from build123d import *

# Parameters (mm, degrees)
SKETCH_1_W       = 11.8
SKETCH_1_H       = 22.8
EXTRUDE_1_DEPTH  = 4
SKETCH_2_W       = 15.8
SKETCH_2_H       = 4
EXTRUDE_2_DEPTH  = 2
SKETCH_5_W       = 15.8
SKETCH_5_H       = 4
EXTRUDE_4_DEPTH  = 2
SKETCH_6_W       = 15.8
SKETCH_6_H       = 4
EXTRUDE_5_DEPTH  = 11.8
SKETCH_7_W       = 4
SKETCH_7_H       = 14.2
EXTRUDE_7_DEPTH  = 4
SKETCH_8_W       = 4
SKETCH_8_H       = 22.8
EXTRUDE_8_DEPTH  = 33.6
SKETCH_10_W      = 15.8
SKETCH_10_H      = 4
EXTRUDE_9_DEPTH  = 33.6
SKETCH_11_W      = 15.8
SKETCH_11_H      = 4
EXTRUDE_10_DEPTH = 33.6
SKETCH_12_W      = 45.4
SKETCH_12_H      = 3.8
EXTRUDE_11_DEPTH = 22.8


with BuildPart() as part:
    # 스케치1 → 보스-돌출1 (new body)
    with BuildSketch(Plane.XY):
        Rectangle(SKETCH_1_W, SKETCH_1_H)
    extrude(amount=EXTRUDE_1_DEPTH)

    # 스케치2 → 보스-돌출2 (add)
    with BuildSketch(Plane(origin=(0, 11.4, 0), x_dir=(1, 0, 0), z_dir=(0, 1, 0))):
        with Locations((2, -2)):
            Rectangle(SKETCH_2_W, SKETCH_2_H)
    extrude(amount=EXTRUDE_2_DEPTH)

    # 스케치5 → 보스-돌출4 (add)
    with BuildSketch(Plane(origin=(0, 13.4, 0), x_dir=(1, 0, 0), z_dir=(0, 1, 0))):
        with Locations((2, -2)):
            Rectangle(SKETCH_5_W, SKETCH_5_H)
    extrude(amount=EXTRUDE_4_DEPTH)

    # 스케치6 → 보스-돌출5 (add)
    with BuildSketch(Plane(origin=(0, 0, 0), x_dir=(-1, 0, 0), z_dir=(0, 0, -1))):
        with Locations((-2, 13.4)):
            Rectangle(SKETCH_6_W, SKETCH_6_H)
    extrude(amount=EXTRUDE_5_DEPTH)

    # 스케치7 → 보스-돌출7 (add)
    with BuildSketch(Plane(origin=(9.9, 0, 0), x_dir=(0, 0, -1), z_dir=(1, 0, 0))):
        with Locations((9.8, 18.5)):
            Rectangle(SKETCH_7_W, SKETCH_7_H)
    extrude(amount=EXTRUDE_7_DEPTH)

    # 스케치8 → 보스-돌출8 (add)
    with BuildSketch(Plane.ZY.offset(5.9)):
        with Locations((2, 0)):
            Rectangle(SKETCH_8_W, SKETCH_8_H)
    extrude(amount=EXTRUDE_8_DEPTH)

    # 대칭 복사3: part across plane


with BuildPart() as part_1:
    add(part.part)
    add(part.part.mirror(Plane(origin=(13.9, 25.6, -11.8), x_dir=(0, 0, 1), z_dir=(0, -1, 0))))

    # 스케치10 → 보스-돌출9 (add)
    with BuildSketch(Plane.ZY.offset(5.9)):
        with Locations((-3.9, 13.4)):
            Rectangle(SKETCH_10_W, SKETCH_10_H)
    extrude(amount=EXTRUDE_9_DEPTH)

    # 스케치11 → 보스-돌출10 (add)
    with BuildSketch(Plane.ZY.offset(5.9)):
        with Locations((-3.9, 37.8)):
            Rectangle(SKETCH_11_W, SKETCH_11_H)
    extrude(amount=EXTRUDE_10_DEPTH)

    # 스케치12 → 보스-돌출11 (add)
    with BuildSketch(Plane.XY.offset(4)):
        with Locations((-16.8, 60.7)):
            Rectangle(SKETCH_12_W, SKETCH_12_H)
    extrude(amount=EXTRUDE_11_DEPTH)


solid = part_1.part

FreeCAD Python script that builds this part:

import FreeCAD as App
import Part
import Sketcher
from FreeCAD import Vector


def add_polygon(sketch, points):
    """Adds a closed chain of lines whose ends are joined by coincident constraints."""
    first, n = sketch.GeometryCount, len(points)
    for a, b in zip(points, points[1:] + points[:1]):
        sketch.addGeometry(Part.LineSegment(App.Vector(*a, 0), App.Vector(*b, 0)), False)
    for i in range(n):
        sketch.addConstraint(Sketcher.Constraint("Coincident", first + i, 2, first + (i + 1) % n, 1))

doc = App.newDocument("Part")
body = doc.addObject("PartDesign::Body", "Body")

# Sketch on XY plane
sketch1 = body.newObject("Sketcher::SketchObject", "Sketch")
sketch1.AttachmentSupport = (doc.getObject("XY_Plane"), [""])
sketch1.MapMode = "FlatFace"
add_polygon(sketch1, [(-5.9, 11.4), (-5.9, -11.4), (5.9, -11.4), (5.9, 11.4)])  # lines 0-3
sketch1.addConstraint(Sketcher.Constraint("Vertical", 0))
sketch1.addConstraint(Sketcher.Constraint("Horizontal", 1))
sketch1.addConstraint(Sketcher.Constraint("Vertical", 2))
sketch1.addConstraint(Sketcher.Constraint("Horizontal", 3))
sketch1.addConstraint(Sketcher.Constraint("Symmetric", 0, 2, 2, 2, -1, 1))
sketch1.addConstraint(Sketcher.Constraint("DistanceX", 1, 1, 1, 2, 11.8))
sketch1.addConstraint(Sketcher.Constraint("DistanceY", 0, 2, 0, 1, 22.8))
pad1 = body.newObject("PartDesign::Pad", "Pad")
pad1.Profile = sketch1
pad1.Length = 4

# Sketch on XZ plane
sketch2 = body.newObject("Sketcher::SketchObject", "Sketch001")
sketch2.AttachmentSupport = (doc.getObject("XZ_Plane"), [""])
sketch2.MapMode = "FlatFace"
sketch2.AttachmentOffset = App.Placement(Vector(0, 0, -11.4), App.Rotation())
add_polygon(sketch2, [(-5.9, 0), (-5.9, 4), (9.9, 4), (9.9, 0)])  # lines 0-3
sketch2.addConstraint(Sketcher.Constraint("Vertical", 0))
sketch2.addConstraint(Sketcher.Constraint("Horizontal", 1))
sketch2.addConstraint(Sketcher.Constraint("Vertical", 2))
sketch2.addConstraint(Sketcher.Constraint("Horizontal", 3))
sketch2.addConstraint(Sketcher.Constraint("PointOnObject", 2, 2, -1))
sketch2.addConstraint(Sketcher.Constraint("DistanceY", 0, 1, 0, 2, 4.0))
sketch2.addConstraint(Sketcher.Constraint("DistanceX", 1, 1, 1, 2, 15.8))
sketch2.addConstraint(Sketcher.Constraint("DistanceX", 0, 2, -1, 1, 5.9))
pad2 = body.newObject("PartDesign::Pad", "Pad001")
pad2.Profile = sketch2
pad2.Length = 2
pad2.Reversed = True

# Sketch on XZ plane
sketch3 = body.newObject("Sketcher::SketchObject", "Sketch002")
sketch3.AttachmentSupport = (doc.getObject("XZ_Plane"), [""])
sketch3.MapMode = "FlatFace"
sketch3.AttachmentOffset = App.Placement(Vector(0, 0, -13.4), App.Rotation())
add_polygon(sketch3, [(-5.9, 0), (-5.9, 4), (9.9, 4), (9.9, 0)])  # lines 0-3
sketch3.addConstraint(Sketcher.Constraint("Vertical", 0))
sketch3.addConstraint(Sketcher.Constraint("Horizontal", 1))
sketch3.addConstraint(Sketcher.Constraint("Vertical", 2))
sketch3.addConstraint(Sketcher.Constraint("Horizontal", 3))
sketch3.addConstraint(Sketcher.Constraint("PointOnObject", 2, 2, -1))
sketch3.addConstraint(Sketcher.Constraint("DistanceY", 0, 1, 0, 2, 4.0))
sketch3.addConstraint(Sketcher.Constraint("DistanceX", 1, 1, 1, 2, 15.8))
sketch3.addConstraint(Sketcher.Constraint("DistanceX", 0, 2, -1, 1, 5.9))
pad3 = body.newObject("PartDesign::Pad", "Pad002")
pad3.Profile = sketch3
pad3.Length = 2
pad3.Reversed = True

# Sketch on XY plane
sketch4 = body.newObject("Sketcher::SketchObject", "Sketch003")
sketch4.AttachmentSupport = (doc.getObject("XY_Plane"), [""])
sketch4.MapMode = "FlatFace"
add_polygon(sketch4, [(9.9, 15.4), (9.9, 11.4), (-5.9, 11.4), (-5.9, 15.4)])  # lines 0-3
sketch4.addConstraint(Sketcher.Constraint("Vertical", 0))
sketch4.addConstraint(Sketcher.Constraint("Horizontal", 1))
sketch4.addConstraint(Sketcher.Constraint("Vertical", 2))
sketch4.addConstraint(Sketcher.Constraint("Horizontal", 3))
sketch4.addConstraint(Sketcher.Constraint("DistanceY", 0, 2, 0, 1, 4.0))
sketch4.addConstraint(Sketcher.Constraint("DistanceX", 1, 2, 1, 1, 15.8))
sketch4.addConstraint(Sketcher.Constraint("DistanceX", -1, 1, 0, 2, 9.9))
sketch4.addConstraint(Sketcher.Constraint("DistanceY", -1, 1, 0, 2, 11.4))
pad4 = body.newObject("PartDesign::Pad", "Pad003")
pad4.Profile = sketch4
pad4.Length = 11.8
pad4.Reversed = True

# Sketch on YZ plane
sketch5 = body.newObject("Sketcher::SketchObject", "Sketch004")
sketch5.AttachmentSupport = (doc.getObject("YZ_Plane"), [""])
sketch5.MapMode = "FlatFace"
sketch5.AttachmentOffset = App.Placement(Vector(0, 0, 9.9), App.Rotation())
add_polygon(sketch5, [(25.6, -7.8), (11.4, -7.8), (11.4, -11.8), (25.6, -11.8)])  # lines 0-3
sketch5.addConstraint(Sketcher.Constraint("Horizontal", 0))
sketch5.addConstraint(Sketcher.Constraint("Vertical", 1))
sketch5.addConstraint(Sketcher.Constraint("Horizontal", 2))
sketch5.addConstraint(Sketcher.Constraint("Vertical", 3))
sketch5.addConstraint(Sketcher.Constraint("DistanceY", 1, 2, 1, 1, 4.0))
sketch5.addConstraint(Sketcher.Constraint("DistanceX", 0, 2, 0, 1, 14.2))
sketch5.addConstraint(Sketcher.Constraint("DistanceX", -1, 1, 0, 2, 11.4))
sketch5.addConstraint(Sketcher.Constraint("DistanceY", 0, 2, -1, 1, 7.8))
pad5 = body.newObject("PartDesign::Pad", "Pad004")
pad5.Profile = sketch5
pad5.Length = 4

# Sketch on YZ plane
sketch6 = body.newObject("Sketcher::SketchObject", "Sketch005")
sketch6.AttachmentSupport = (doc.getObject("YZ_Plane"), [""])
sketch6.MapMode = "FlatFace"
sketch6.AttachmentOffset = App.Placement(Vector(0, 0, -5.9), App.Rotation())
add_polygon(sketch6, [(11.4, 0), (-11.4, 0), (-11.4, 4), (11.4, 4)])  # lines 0-3
sketch6.addConstraint(Sketcher.Constraint("Horizontal", 0))
sketch6.addConstraint(Sketcher.Constraint("Vertical", 1))
sketch6.addConstraint(Sketcher.Constraint("Horizontal", 2))
sketch6.addConstraint(Sketcher.Constraint("Vertical", 3))
sketch6.addConstraint(Sketcher.Constraint("Symmetric", 0, 2, 3, 2, -1, 1))
sketch6.addConstraint(Sketcher.Constraint("DistanceY", 1, 1, 1, 2, 4.0))
sketch6.addConstraint(Sketcher.Constraint("DistanceX", 0, 2, 0, 1, 22.8))
pad6 = body.newObject("PartDesign::Pad", "Pad005")
pad6.Profile = sketch6
pad6.Length = 33.6
pad6.Reversed = True
body2 = doc.addObject("PartDesign::Body", "Body001")
doc.recompute()

body2.BaseFeature = body
doc.recompute()

mirroring = doc.addObject("Part::Mirroring", "Mirroring")
mirroring.Source = body
mirroring.Base = Vector(13.9, 25.6, -11.8)
mirroring.Normal = Vector(0, -1, 0)
body3 = doc.addObject("PartDesign::Body", "Body002")
body3.BaseFeature = mirroring
boolean = body2.newObject("PartDesign::Boolean", "Boolean")
boolean.Type = "Fuse"
boolean.addObjects([body3])
doc.recompute()

# Sketch on YZ plane
sketch7 = body2.newObject("Sketcher::SketchObject", "Sketch006")
sketch7.AttachmentSupport = (doc.getObject("YZ_Plane001"), [""])
sketch7.MapMode = "FlatFace"
sketch7.AttachmentOffset = App.Placement(Vector(0, 0, -5.9), App.Rotation())
add_polygon(sketch7, [(15.4, -11.8), (11.4, -11.8), (11.4, 4), (15.4, 4)])  # lines 0-3
sketch7.addConstraint(Sketcher.Constraint("Horizontal", 0))
sketch7.addConstraint(Sketcher.Constraint("Vertical", 1))
sketch7.addConstraint(Sketcher.Constraint("Horizontal", 2))
sketch7.addConstraint(Sketcher.Constraint("Vertical", 3))
sketch7.addConstraint(Sketcher.Constraint("DistanceX", 0, 2, 0, 1, 4.0))
sketch7.addConstraint(Sketcher.Constraint("DistanceY", 1, 1, 1, 2, 15.8))
sketch7.addConstraint(Sketcher.Constraint("DistanceY", -1, 1, 1, 2, 4.0))
sketch7.addConstraint(Sketcher.Constraint("DistanceX", -1, 1, 0, 2, 11.4))
pad7 = body2.newObject("PartDesign::Pad", "Pad006")
pad7.Profile = sketch7
pad7.Length = 33.6
pad7.Reversed = True

# Sketch on YZ plane
sketch8 = body2.newObject("Sketcher::SketchObject", "Sketch007")
sketch8.AttachmentSupport = (doc.getObject("YZ_Plane001"), [""])
sketch8.MapMode = "FlatFace"
sketch8.AttachmentOffset = App.Placement(Vector(0, 0, -5.9), App.Rotation())
add_polygon(sketch8, [(39.8, -11.8), (35.8, -11.8), (35.8, 4), (39.8, 4)])  # lines 0-3
sketch8.addConstraint(Sketcher.Constraint("Horizontal", 0))
sketch8.addConstraint(Sketcher.Constraint("Vertical", 1))
sketch8.addConstraint(Sketcher.Constraint("Horizontal", 2))
sketch8.addConstraint(Sketcher.Constraint("Vertical", 3))
sketch8.addConstraint(Sketcher.Constraint("DistanceX", 0, 2, 0, 1, 4.0))
sketch8.addConstraint(Sketcher.Constraint("DistanceY", 1, 1, 1, 2, 15.8))
sketch8.addConstraint(Sketcher.Constraint("DistanceY", -1, 1, 1, 2, 4.0))
sketch8.addConstraint(Sketcher.Constraint("DistanceX", -1, 1, 0, 2, 35.8))
pad8 = body2.newObject("PartDesign::Pad", "Pad007")
pad8.Profile = sketch8
pad8.Length = 33.6
pad8.Reversed = True

# Sketch on XY plane
sketch9 = body2.newObject("Sketcher::SketchObject", "Sketch008")
sketch9.AttachmentSupport = (doc.getObject("XY_Plane001"), [""])
sketch9.MapMode = "FlatFace"
sketch9.AttachmentOffset = App.Placement(Vector(0, 0, 4), App.Rotation())
add_polygon(sketch9, [(-39.5, 62.6), (-39.5, 58.8), (5.9, 58.8), (5.9, 62.6)])  # lines 0-3
sketch9.addConstraint(Sketcher.Constraint("Vertical", 0))
sketch9.addConstraint(Sketcher.Constraint("Horizontal", 1))
sketch9.addConstraint(Sketcher.Constraint("Vertical", 2))
sketch9.addConstraint(Sketcher.Constraint("Horizontal", 3))
sketch9.addConstraint(Sketcher.Constraint("DistanceX", 1, 1, 1, 2, 45.4))
sketch9.addConstraint(Sketcher.Constraint("DistanceY", 0, 2, 0, 1, 3.8))
sketch9.addConstraint(Sketcher.Constraint("DistanceX", 0, 2, -1, 1, 39.5))
sketch9.addConstraint(Sketcher.Constraint("DistanceY", -1, 1, 0, 2, 58.8))
pad9 = body2.newObject("PartDesign::Pad", "Pad008")
pad9.Profile = sketch9
pad9.Length = 22.8
mirroring.Visibility = False

doc.recompute()
